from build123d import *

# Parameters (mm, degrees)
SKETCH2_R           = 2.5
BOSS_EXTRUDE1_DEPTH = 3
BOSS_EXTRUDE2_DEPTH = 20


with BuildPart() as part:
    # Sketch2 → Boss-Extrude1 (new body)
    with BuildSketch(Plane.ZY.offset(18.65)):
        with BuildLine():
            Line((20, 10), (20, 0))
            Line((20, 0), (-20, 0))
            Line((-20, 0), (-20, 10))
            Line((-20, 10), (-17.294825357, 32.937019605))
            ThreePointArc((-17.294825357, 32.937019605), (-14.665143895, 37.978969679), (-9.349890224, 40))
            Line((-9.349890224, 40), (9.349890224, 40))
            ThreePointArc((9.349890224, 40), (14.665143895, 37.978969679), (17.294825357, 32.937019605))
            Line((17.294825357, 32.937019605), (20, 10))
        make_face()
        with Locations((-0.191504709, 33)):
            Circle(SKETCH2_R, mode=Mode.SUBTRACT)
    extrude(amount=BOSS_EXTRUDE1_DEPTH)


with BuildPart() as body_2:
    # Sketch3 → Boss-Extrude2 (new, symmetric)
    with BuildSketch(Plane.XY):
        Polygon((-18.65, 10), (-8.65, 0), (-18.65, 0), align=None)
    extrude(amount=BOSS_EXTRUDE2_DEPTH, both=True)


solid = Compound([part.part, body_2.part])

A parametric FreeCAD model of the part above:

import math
import FreeCAD as App
import Part
import Sketcher
Q = App.Units.Quantity

doc = App.newDocument("Part")
body = doc.addObject("PartDesign::Body", "Body")

# Sketch on YZ plane
sketch1 = body.newObject("Sketcher::SketchObject", "Sketch")
sketch1.AttachmentSupport = (doc.getObject("YZ_Plane"), [""])
sketch1.MapMode = "FlatFace"
sketch1.AttachmentOffset = App.Placement(App.Vector(0, 0, -18.65), App.Rotation())
sketch1.addGeometry(Part.LineSegment(App.Vector(0, 20, 0), App.Vector(10, 20, 0)), False)
sketch1.addGeometry(Part.LineSegment(App.Vector(10, 20, 0), App.Vector(32.9, 17.3, 0)), False)
sketch1.addGeometry(Part.ArcOfCircle(Part.Circle(App.Vector(32, 9.3, 0), App.Vector(0, 0, 1), 8), math.radians(0), math.radians(83)), False)
sketch1.addGeometry(Part.LineSegment(App.Vector(40, 9.3, 0), App.Vector(40, -9.3, 0)), False)
sketch1.addGeometry(Part.ArcOfCircle(Part.Circle(App.Vector(32, -9.3, 0), App.Vector(0, 0, 1), 8), math.radians(-83), math.radians(0)), False)
sketch1.addGeometry(Part.LineSegment(App.Vector(32.9, -17.3, 0), App.Vector(10, -20, 0)), False)
sketch1.addGeometry(Part.LineSegment(App.Vector(10, -20, 0), App.Vector(0, -20, 0)), False)
sketch1.addGeometry(Part.LineSegment(App.Vector(0, -20, 0), App.Vector(0, 20, 0)), False)
sketch1.addGeometry(Part.Circle(App.Vector(33, -0.2, 0), App.Vector(0, 0, 1), 2.5), False)
sketch1.addConstraint(Sketcher.Constraint("Coincident", 0, 2, 1, 1))
sketch1.addConstraint(Sketcher.Constraint("Tangent", 1, 2, 2, 2))
sketch1.addConstraint(Sketcher.Constraint("Tangent", 2, 1, 3, 1))
sketch1.addConstraint(Sketcher.Constraint("Tangent", 3, 2, 4, 2))
sketch1.addConstraint(Sketcher.Constraint("Tangent", 4, 1, 5, 1))
sketch1.addConstraint(Sketcher.Constraint("Coincident", 5, 2, 6, 1))
sketch1.addConstraint(Sketcher.Constraint("Coincident", 6, 2, 7, 1))
sketch1.addConstraint(Sketcher.Constraint("Coincident", 7, 2, 0, 1))
sketch1.addConstraint(Sketcher.Constraint("Horizontal", 0))
sketch1.addConstraint(Sketcher.Constraint("Vertical", 3))
sketch1.addConstraint(Sketcher.Constraint("Horizontal", 6))
sketch1.addConstraint(Sketcher.Constraint("Vertical", 7))
sketch1.addConstraint(Sketcher.Constraint("Equal", 2, 4))
sketch1.addConstraint(Sketcher.Constraint("Symmetric", 6, 2, 7, 2, -1, 1))
sketch1.addConstraint(Sketcher.Constraint("Symmetric", 1, 2, 4, 1, -1))
sketch1.addConstraint(Sketcher.Constraint("Diameter", 8, Q("5 mm")))
sketch1.addConstraint(Sketcher.Constraint("Radius", 2, Q("8 mm")))
sketch1.addConstraint(Sketcher.Constraint("DistanceX", 0, 1, 0, 2, Q("10 mm")))
sketch1.addConstraint(Sketcher.Constraint("DistanceY", 7, 1, 7, 2, Q("40 mm")))
sketch1.addConstraint(Sketcher.Constraint("DistanceX", -1, 1, 2, 3, Q("32 mm")))
sketch1.addConstraint(Sketcher.Constraint("DistanceX", -1, 1, 8, 3, Q("33 mm")))
sketch1.addConstraint(Sketcher.Constraint("DistanceY", 3, 2, 3, 1, Q("18.69978 mm")))
sketch1.addConstraint(Sketcher.Constraint("DistanceY", 8, 3, 1, 2, Q("17.48633 mm")))
pad1 = body.newObject("PartDesign::Pad", "Pad")
pad1.Profile = sketch1
pad1.Length = 3
pad1.Reversed = True
body2 = doc.addObject("PartDesign::Body", "Body001")

# Sketch on XY plane
sketch2 = body2.newObject("Sketcher::SketchObject", "Sketch001")
sketch2.AttachmentSupport = (doc.getObject("XY_Plane001"), [""])
sketch2.MapMode = "FlatFace"
sketch2.addGeometry(Part.LineSegment(App.Vector(-9, 0, 0), App.Vector(-19, 10, 0)), False)
sketch2.addGeometry(Part.LineSegment(App.Vector(-19, 10, 0), App.Vector(-19, 0, 0)), False)
sketch2.addGeometry(Part.LineSegment(App.Vector(-19, 0, 0), App.Vector(-9, 0, 0)), False)
sketch2.addConstraint(Sketcher.Constraint("Coincident", 0, 2, 1, 1))
sketch2.addConstraint(Sketcher.Constraint("Coincident", 1, 2, 2, 1))
sketch2.addConstraint(Sketcher.Constraint("Coincident", 2, 2, 0, 1))
sketch2.addConstraint(Sketcher.Constraint("Vertical", 1))
sketch2.addConstraint(Sketcher.Constraint("Horizontal", 2))
sketch2.addConstraint(Sketcher.Constraint("PointOnObject", 1, 2, -1))
sketch2.addConstraint(Sketcher.Constraint("Equal", 2, 1))
sketch2.addConstraint(Sketcher.Constraint("DistanceX", 2, 1, 2, 2, Q("10 mm")))
sketch2.addConstraint(Sketcher.Constraint("DistanceX", 0, 2, -1, 1, Q("18.65 mm")))
pad2 = body2.newObject("PartDesign::Pad", "Pad001")
pad2.Profile = sketch2
pad2.Length = 40
pad2.Midplane = True

doc.recompute()
